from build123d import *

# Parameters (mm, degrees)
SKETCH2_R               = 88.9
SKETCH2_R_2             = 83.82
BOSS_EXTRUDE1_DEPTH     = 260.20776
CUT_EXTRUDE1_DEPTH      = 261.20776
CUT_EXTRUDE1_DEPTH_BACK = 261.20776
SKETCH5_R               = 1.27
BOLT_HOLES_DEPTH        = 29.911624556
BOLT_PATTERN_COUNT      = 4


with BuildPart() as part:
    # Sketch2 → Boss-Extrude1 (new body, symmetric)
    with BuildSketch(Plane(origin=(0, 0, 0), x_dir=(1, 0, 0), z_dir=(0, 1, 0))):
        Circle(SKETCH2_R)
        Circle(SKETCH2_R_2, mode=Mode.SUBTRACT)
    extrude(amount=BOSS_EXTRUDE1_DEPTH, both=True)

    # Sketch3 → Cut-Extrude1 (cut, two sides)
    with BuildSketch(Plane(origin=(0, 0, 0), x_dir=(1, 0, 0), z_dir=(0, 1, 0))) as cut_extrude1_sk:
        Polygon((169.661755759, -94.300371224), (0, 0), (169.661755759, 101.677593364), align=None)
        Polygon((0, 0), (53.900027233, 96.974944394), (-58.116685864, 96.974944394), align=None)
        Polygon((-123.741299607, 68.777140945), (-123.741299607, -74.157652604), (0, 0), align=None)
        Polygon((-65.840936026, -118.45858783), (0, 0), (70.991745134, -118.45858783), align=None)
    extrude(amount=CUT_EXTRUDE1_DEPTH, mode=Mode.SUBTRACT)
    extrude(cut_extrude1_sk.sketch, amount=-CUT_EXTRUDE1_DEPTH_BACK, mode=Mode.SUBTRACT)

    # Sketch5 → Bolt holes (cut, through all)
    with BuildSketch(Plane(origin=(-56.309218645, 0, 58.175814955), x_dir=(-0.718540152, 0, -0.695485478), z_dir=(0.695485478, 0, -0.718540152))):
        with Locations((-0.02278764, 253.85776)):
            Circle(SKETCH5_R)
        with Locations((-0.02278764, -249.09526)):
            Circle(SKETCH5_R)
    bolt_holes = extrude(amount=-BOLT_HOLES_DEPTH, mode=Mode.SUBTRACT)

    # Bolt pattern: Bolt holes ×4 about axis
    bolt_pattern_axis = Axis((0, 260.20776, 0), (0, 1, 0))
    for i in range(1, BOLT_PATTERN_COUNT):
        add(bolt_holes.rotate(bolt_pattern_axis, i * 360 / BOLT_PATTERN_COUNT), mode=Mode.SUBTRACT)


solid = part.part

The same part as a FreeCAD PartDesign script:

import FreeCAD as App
import Part
import Sketcher
Q = App.Units.Quantity

doc = App.newDocument("Part")
body = doc.addObject("PartDesign::Body", "Body")
body.AllowCompound = True

sketch1 = body.newObject("Sketcher::SketchObject", "Sketch")
sketch1.AttachmentSupport = (doc.getObject("XZ_Plane"), [""])
sketch1.MapMode = "FlatFace"
sketch1.addGeometry(Part.Circle(App.Vector(0, 0, 0), App.Vector(0, 0, 1), 88.9), False)
sketch1.addGeometry(Part.Circle(App.Vector(0, 0, 0), App.Vector(0, 0, 1), 83.82), False)
sketch1.addConstraint(Sketcher.Constraint("Coincident", 0, 3, -1, 1))
sketch1.addConstraint(Sketcher.Constraint("Coincident", 1, 3, -1, 1))
sketch1.addConstraint(Sketcher.Constraint("Diameter", 0, Q("7 in")))
sketch1.addConstraint(Sketcher.Constraint("Diameter", 1, Q("6.6 in")))
pad1 = body.newObject("PartDesign::Pad", "Pad")
pad1.Profile = sketch1
pad1.Length = Q("20.4888 in")
pad1.Midplane = True

sketch2 = body.newObject("Sketcher::SketchObject", "Sketch001")
sketch2.AttachmentSupport = (doc.getObject("XZ_Plane"), [""])
sketch2.MapMode = "FlatFace"
sketch2.addGeometry(Part.LineSegment(App.Vector(0, 0, 0), App.Vector(169.661756, 94.300371, 0)), False)
sketch2.addGeometry(Part.LineSegment(App.Vector(169.661756, 94.300371, 0), App.Vector(169.661756, -101.677593, 0)), False)
sketch2.addGeometry(Part.LineSegment(App.Vector(169.661756, -101.677593, 0), App.Vector(0, 0, 0)), False)
sketch2.addGeometry(Part.LineSegment(App.Vector(0, 0, 0), App.Vector(53.900027, -96.974944, 0)), False)
sketch2.addGeometry(Part.LineSegment(App.Vector(53.900027, -96.974944, 0), App.Vector(-58.116686, -96.974944, 0)), False)
sketch2.addGeometry(Part.LineSegment(App.Vector(-58.116686, -96.974944, 0), App.Vector(0, 0, 0)), False)
sketch2.addGeometry(Part.LineSegment(App.Vector(-123.7413, -68.777141, 0), App.Vector(-123.7413, 74.157653, 0)), False)
sketch2.addGeometry(Part.LineSegment(App.Vector(-123.7413, 74.157653, 0), App.Vector(0, 0, 0)), False)
sketch2.addGeometry(Part.LineSegment(App.Vector(0, 0, 0), App.Vector(-123.7413, -68.777141, 0)), False)
sketch2.addGeometry(Part.LineSegment(App.Vector(0, 0, 0), App.Vector(-65.840936, 118.458588, 0)), False)
sketch2.addGeometry(Part.LineSegment(App.Vector(-65.840936, 118.458588, 0), App.Vector(70.991745, 118.458588, 0)), False)
sketch2.addGeometry(Part.LineSegment(App.Vector(70.991745, 118.458588, 0), App.Vector(0, 0, 0)), False)
sketch2.addConstraint(Sketcher.Constraint("Coincident", 0, 2, 1, 1))
sketch2.addConstraint(Sketcher.Constraint("Coincident", 1, 2, 2, 1))
sketch2.addConstraint(Sketcher.Constraint("Coincident", 2, 2, 0, 1))
sketch2.addConstraint(Sketcher.Constraint("Coincident", 3, 2, 4, 1))
sketch2.addConstraint(Sketcher.Constraint("Coincident", 4, 2, 5, 1))
sketch2.addConstraint(Sketcher.Constraint("Coincident", 5, 2, 3, 1))
sketch2.addConstraint(Sketcher.Constraint("Coincident", 6, 2, 7, 1))
sketch2.addConstraint(Sketcher.Constraint("Coincident", 7, 2, 8, 1))
sketch2.addConstraint(Sketcher.Constraint("Coincident", 8, 2, 6, 1))
sketch2.addConstraint(Sketcher.Constraint("Coincident", 9, 2, 10, 1))
sketch2.addConstraint(Sketcher.Constraint("Coincident", 10, 2, 11, 1))
sketch2.addConstraint(Sketcher.Constraint("Coincident", 11, 2, 9, 1))
sketch2.addConstraint(Sketcher.Constraint("Vertical", 1))
sketch2.addConstraint(Sketcher.Constraint("Horizontal", 4))
sketch2.addConstraint(Sketcher.Constraint("Vertical", 6))
sketch2.addConstraint(Sketcher.Constraint("Horizontal", 10))
sketch2.addConstraint(Sketcher.Constraint("Coincident", 2, 2, -1, 1))
sketch2.addConstraint(Sketcher.Constraint("Coincident", 5, 2, -1, 1))
sketch2.addConstraint(Sketcher.Constraint("Coincident", 7, 2, -1, 1))
sketch2.addConstraint(Sketcher.Constraint("Coincident", 11, 2, -1, 1))
sketch2.addConstraint(Sketcher.Constraint("Perpendicular", 0, 3))
sketch2.addConstraint(Sketcher.Constraint("Perpendicular", 2, 5))
sketch2.addConstraint(Sketcher.Constraint("Perpendicular", 5, 7))
sketch2.addConstraint(Sketcher.Constraint("Perpendicular", 3, 8))
sketch2.addConstraint(Sketcher.Constraint("Perpendicular", 8, 9))
sketch2.addConstraint(Sketcher.Constraint("Perpendicular", 7, 11))
sketch2.addConstraint(Sketcher.Constraint("DistanceX", 10, 1, 10, 2, Q("136.832681 mm")))
sketch2.addConstraint(Sketcher.Constraint("DistanceX", 6, 2, -1, 1, Q("123.7413 mm")))
sketch2.addConstraint(Sketcher.Constraint("Distance", 0, Q("194.107371 mm")))
sketch2.addConstraint(Sketcher.Constraint("Distance", 11, Q("138.102371 mm")))
sketch2.addConstraint(Sketcher.Constraint("DistanceX", 4, 2, 4, 1, Q("112.016713 mm")))
sketch2.addConstraint(Sketcher.Constraint("DistanceY", 1, 2, 1, 1, Q("195.977965 mm")))
pocket1 = body.newObject("PartDesign::Pocket", "Pocket")
pocket1.Profile = sketch2
pocket1.Type = "ThroughAll"
pocket1.Midplane = True

sketch3 = body.newObject("Sketcher::SketchObject", "Sketch002")
sketch3.Placement = App.Placement(App.Vector(-56.309219, 0, 58.175815), App.Rotation(App.Vector(-0.718540152, 0, -0.695485478), App.Vector(0, 1, 0), App.Vector(0.695485478, 0, -0.718540152), "ZXY"))
sketch3.addGeometry(Part.Circle(App.Vector(-0.022788, 253.85776, 0), App.Vector(0, 0, 1), 1.27), False)
sketch3.addGeometry(Part.Circle(App.Vector(-0.022788, -249.09526, 0), App.Vector(0, 0, 1), 1.27), False)
sketch3.addConstraint(Sketcher.Constraint("Equal", 0, 1))
sketch3.addConstraint(Sketcher.Constraint("Vertical", 0, 3, 1, 3))
sketch3.addConstraint(Sketcher.Constraint("Diameter", 0, Q("0.1 in")))
sketch3.addConstraint(Sketcher.Constraint("DistanceY", -1, 1, 0, 3, Q("9.9944 in")))
sketch3.addConstraint(Sketcher.Constraint("DistanceY", 1, 3, -1, 1, Q("9.8069 in")))
sketch3.addConstraint(Sketcher.Constraint("DistanceX", 0, 3, -1, 1, Q("0.022788 mm")))
pocket2 = body.newObject("PartDesign::Pocket", "Pocket001")
pocket2.Profile = sketch3
pocket2.Type = "ThroughAll"
doc.recompute()

polarpattern = body.newObject("PartDesign::PolarPattern", "PolarPattern")
polarpattern.Originals = [pocket2]
polarpattern.Axis = (doc.getObject("Y_Axis"), [""])
polarpattern.Angle = 360
polarpattern.Occurrences = 4
body.Tip = polarpattern

doc.recompute()
